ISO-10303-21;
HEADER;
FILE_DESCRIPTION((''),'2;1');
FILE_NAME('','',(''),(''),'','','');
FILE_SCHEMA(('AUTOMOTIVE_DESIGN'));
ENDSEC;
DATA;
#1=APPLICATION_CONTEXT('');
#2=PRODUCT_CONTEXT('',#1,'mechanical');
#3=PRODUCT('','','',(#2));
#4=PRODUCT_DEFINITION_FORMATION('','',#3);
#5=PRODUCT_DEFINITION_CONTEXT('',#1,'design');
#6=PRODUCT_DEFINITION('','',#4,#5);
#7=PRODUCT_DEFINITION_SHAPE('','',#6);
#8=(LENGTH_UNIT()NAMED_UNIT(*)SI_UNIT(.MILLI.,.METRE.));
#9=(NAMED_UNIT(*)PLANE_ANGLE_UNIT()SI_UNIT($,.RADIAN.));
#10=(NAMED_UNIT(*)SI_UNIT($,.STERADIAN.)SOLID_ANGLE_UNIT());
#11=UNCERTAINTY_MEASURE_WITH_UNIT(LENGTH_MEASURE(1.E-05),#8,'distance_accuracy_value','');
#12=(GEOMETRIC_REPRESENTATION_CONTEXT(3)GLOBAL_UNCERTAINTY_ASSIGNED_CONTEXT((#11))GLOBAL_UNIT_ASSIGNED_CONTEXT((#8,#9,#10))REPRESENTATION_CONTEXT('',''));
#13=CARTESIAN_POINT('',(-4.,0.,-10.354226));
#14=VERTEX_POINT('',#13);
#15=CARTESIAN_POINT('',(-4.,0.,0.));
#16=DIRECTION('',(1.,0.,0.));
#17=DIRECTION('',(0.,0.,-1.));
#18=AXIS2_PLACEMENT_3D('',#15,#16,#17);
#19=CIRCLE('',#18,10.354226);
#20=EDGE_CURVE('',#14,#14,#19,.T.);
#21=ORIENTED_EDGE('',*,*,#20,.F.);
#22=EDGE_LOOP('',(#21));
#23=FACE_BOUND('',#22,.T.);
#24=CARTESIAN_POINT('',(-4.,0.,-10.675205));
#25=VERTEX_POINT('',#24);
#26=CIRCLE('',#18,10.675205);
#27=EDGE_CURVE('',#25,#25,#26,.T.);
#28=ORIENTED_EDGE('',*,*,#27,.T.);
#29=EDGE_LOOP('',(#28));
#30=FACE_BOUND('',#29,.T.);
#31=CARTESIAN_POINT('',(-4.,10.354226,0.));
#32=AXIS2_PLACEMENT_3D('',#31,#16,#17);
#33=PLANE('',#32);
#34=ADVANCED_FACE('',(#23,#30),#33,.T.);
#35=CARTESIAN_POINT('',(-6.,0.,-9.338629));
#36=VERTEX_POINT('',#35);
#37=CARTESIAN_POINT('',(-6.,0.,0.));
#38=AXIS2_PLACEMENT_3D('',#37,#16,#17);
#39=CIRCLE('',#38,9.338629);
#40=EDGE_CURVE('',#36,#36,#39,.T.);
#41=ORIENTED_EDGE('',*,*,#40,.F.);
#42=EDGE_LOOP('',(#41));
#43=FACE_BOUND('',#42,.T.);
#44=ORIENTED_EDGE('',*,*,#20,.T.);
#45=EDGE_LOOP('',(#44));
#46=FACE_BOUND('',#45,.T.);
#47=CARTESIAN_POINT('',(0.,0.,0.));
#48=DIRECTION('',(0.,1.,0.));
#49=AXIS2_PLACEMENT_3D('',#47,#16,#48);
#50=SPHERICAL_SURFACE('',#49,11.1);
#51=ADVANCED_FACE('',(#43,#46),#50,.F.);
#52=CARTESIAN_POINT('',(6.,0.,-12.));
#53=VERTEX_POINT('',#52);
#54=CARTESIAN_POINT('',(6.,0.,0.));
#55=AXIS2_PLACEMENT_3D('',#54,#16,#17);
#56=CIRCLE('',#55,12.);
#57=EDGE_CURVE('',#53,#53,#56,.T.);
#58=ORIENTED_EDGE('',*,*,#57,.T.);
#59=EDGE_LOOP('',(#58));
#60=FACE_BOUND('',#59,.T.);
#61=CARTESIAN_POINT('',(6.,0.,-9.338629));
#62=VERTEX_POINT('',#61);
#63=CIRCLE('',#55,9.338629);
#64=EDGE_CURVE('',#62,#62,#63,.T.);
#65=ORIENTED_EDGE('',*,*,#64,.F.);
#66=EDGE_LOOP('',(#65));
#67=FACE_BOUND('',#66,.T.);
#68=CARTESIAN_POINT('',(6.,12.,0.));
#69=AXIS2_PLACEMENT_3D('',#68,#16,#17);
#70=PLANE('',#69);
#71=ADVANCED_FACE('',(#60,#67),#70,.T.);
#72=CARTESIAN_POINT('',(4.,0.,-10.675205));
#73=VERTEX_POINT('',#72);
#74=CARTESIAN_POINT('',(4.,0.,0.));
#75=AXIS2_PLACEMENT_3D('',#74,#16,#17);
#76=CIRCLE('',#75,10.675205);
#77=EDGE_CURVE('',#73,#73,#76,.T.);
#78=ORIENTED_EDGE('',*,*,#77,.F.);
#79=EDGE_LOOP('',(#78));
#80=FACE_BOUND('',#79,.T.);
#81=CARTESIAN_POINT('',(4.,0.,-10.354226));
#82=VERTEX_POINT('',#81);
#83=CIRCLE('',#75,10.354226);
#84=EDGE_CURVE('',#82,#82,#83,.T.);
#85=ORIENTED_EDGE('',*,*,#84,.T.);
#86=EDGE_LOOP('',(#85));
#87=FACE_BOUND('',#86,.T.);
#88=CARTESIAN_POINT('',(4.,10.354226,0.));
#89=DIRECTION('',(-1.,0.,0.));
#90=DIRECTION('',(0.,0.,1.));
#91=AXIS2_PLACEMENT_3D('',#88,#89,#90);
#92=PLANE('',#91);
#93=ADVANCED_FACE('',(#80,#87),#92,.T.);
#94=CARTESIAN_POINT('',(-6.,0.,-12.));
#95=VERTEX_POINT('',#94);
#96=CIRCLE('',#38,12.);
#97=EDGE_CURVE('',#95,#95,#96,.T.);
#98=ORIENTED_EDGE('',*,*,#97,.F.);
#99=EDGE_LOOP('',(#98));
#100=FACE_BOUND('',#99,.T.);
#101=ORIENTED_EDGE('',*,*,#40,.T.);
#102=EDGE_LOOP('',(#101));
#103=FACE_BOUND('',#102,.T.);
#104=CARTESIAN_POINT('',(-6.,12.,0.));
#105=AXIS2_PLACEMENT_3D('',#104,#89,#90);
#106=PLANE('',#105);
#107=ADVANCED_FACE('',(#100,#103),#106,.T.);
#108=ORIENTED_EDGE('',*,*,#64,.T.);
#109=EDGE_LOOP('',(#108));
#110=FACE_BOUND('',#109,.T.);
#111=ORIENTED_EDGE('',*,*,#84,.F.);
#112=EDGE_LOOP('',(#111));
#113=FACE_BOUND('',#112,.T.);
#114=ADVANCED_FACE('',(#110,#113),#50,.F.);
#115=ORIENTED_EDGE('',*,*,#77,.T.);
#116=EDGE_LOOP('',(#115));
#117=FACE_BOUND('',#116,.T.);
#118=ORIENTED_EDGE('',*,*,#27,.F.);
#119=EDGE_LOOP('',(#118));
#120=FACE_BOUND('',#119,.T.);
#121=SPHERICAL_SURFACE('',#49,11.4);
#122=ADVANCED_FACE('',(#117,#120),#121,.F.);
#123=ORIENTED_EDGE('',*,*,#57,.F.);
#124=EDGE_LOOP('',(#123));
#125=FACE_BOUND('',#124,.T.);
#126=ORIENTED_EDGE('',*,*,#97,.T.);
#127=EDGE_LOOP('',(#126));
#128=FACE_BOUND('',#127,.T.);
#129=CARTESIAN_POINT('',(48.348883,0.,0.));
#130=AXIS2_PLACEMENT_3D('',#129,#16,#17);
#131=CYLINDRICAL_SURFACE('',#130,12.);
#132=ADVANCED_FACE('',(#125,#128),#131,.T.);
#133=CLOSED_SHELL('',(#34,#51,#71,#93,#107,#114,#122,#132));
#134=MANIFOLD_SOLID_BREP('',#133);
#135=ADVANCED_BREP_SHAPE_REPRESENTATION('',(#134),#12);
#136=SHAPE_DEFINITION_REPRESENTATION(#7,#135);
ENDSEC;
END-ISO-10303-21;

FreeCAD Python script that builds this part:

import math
import FreeCAD as App
import Part
import Sketcher
Q = App.Units.Quantity

doc = App.newDocument("Part")
params = doc.addObject("Spreadsheet::Sheet", "Params")
for row, (alias, value) in enumerate([
    ("sketch1_radius", "11.1 mm"),
    ("sketch1_radius2", "11.4 mm"),
    ("sketch1_width", "12 mm"),
    ("revolution_angle", "360 deg"),
], start=1):
    params.set(f"A{row}", alias)
    params.set(f"B{row}", "=" + value)
    params.setAlias(f"B{row}", alias)

body = doc.addObject("PartDesign::Body", "Body")

# Sketch on XY plane
sketch1 = body.newObject("Sketcher::SketchObject", "Sketch")
sketch1.AttachmentSupport = (doc.getObject("XY_Plane"), [""])
sketch1.MapMode = "FlatFace"
sketch1.addGeometry([
    Part.LineSegment(App.Vector(6, 12, 0), App.Vector(-6, 12, 0)),  # 0
    Part.LineSegment(App.Vector(-6, 12, 0), App.Vector(-6, 9.34, 0)),  # 1
    Part.ArcOfCircle(Part.Circle(App.Vector(0, 0, 0), App.Vector(0, 0, 1), 11.1), math.radians(111.12), math.radians(122.72)),  # 2
    Part.LineSegment(App.Vector(-4, 10.35, 0), App.Vector(-4, 10.68, 0)),  # 3
    Part.ArcOfCircle(Part.Circle(App.Vector(0, 0, 0), App.Vector(0, 0, 1), 11.4), math.radians(69), math.radians(111)),  # 4
    Part.LineSegment(App.Vector(4, 10.68, 0), App.Vector(4, 10.35, 0)),  # 5
    Part.ArcOfCircle(Part.Circle(App.Vector(0, 0, 0), App.Vector(0, 0, 1), 11.1), math.radians(57.28), math.radians(68.88)),  # 6
    Part.LineSegment(App.Vector(6, 9.34, 0), App.Vector(6, 12, 0)),  # 7
], False)
sketch1.addConstraint([
    Sketcher.Constraint("Coincident", 0, 2, 1, 1),
    Sketcher.Constraint("Coincident", 1, 2, 2, 2),
    Sketcher.Constraint("Coincident", 2, 1, 3, 1),
    Sketcher.Constraint("Coincident", 3, 2, 4, 2),
    Sketcher.Constraint("Coincident", 4, 1, 5, 1),
    Sketcher.Constraint("Coincident", 5, 2, 6, 2),
    Sketcher.Constraint("Coincident", 6, 1, 7, 1),
    Sketcher.Constraint("Coincident", 7, 2, 0, 1),
    Sketcher.Constraint("Horizontal", 0),
    Sketcher.Constraint("Vertical", 1),
    Sketcher.Constraint("Vertical", 3),
    Sketcher.Constraint("Vertical", 5),
    Sketcher.Constraint("Vertical", 7),
    Sketcher.Constraint("Coincident", 2, 3, -1, 1),
    Sketcher.Constraint("Coincident", 4, 3, -1, 1),
    Sketcher.Constraint("Coincident", 6, 3, -1, 1),
    Sketcher.Constraint("Equal", 2, 6),
    Sketcher.Constraint("Horizontal", 3, 2, 4, 1),
    Sketcher.Constraint("Horizontal", 1, 2, 6, 1),
    Sketcher.Constraint("Radius", 2, Q("11.1 mm")),
    Sketcher.Constraint("Radius", 4, Q("11.4 mm")),
    Sketcher.Constraint("DistanceX", 0, 2, 0, 1, Q("12 mm")),
    Sketcher.Constraint("DistanceY", -1, 1, 0, 2, Q("12 mm")),
    Sketcher.Constraint("DistanceX", 2, 1, -1, 1, Q("4 mm")),
])
sketch1.setExpression("Constraints[19]", "Params.sketch1_radius")
sketch1.setExpression("Constraints[20]", "Params.sketch1_radius2")
sketch1.setExpression("Constraints[21]", "Params.sketch1_width")
revolution = body.newObject("PartDesign::Revolution", "Revolution")
revolution.Profile = sketch1
revolution.ReferenceAxis = (sketch1, ["H_Axis"])
revolution.setExpression("Angle", "Params.revolution_angle")

doc.recompute()
